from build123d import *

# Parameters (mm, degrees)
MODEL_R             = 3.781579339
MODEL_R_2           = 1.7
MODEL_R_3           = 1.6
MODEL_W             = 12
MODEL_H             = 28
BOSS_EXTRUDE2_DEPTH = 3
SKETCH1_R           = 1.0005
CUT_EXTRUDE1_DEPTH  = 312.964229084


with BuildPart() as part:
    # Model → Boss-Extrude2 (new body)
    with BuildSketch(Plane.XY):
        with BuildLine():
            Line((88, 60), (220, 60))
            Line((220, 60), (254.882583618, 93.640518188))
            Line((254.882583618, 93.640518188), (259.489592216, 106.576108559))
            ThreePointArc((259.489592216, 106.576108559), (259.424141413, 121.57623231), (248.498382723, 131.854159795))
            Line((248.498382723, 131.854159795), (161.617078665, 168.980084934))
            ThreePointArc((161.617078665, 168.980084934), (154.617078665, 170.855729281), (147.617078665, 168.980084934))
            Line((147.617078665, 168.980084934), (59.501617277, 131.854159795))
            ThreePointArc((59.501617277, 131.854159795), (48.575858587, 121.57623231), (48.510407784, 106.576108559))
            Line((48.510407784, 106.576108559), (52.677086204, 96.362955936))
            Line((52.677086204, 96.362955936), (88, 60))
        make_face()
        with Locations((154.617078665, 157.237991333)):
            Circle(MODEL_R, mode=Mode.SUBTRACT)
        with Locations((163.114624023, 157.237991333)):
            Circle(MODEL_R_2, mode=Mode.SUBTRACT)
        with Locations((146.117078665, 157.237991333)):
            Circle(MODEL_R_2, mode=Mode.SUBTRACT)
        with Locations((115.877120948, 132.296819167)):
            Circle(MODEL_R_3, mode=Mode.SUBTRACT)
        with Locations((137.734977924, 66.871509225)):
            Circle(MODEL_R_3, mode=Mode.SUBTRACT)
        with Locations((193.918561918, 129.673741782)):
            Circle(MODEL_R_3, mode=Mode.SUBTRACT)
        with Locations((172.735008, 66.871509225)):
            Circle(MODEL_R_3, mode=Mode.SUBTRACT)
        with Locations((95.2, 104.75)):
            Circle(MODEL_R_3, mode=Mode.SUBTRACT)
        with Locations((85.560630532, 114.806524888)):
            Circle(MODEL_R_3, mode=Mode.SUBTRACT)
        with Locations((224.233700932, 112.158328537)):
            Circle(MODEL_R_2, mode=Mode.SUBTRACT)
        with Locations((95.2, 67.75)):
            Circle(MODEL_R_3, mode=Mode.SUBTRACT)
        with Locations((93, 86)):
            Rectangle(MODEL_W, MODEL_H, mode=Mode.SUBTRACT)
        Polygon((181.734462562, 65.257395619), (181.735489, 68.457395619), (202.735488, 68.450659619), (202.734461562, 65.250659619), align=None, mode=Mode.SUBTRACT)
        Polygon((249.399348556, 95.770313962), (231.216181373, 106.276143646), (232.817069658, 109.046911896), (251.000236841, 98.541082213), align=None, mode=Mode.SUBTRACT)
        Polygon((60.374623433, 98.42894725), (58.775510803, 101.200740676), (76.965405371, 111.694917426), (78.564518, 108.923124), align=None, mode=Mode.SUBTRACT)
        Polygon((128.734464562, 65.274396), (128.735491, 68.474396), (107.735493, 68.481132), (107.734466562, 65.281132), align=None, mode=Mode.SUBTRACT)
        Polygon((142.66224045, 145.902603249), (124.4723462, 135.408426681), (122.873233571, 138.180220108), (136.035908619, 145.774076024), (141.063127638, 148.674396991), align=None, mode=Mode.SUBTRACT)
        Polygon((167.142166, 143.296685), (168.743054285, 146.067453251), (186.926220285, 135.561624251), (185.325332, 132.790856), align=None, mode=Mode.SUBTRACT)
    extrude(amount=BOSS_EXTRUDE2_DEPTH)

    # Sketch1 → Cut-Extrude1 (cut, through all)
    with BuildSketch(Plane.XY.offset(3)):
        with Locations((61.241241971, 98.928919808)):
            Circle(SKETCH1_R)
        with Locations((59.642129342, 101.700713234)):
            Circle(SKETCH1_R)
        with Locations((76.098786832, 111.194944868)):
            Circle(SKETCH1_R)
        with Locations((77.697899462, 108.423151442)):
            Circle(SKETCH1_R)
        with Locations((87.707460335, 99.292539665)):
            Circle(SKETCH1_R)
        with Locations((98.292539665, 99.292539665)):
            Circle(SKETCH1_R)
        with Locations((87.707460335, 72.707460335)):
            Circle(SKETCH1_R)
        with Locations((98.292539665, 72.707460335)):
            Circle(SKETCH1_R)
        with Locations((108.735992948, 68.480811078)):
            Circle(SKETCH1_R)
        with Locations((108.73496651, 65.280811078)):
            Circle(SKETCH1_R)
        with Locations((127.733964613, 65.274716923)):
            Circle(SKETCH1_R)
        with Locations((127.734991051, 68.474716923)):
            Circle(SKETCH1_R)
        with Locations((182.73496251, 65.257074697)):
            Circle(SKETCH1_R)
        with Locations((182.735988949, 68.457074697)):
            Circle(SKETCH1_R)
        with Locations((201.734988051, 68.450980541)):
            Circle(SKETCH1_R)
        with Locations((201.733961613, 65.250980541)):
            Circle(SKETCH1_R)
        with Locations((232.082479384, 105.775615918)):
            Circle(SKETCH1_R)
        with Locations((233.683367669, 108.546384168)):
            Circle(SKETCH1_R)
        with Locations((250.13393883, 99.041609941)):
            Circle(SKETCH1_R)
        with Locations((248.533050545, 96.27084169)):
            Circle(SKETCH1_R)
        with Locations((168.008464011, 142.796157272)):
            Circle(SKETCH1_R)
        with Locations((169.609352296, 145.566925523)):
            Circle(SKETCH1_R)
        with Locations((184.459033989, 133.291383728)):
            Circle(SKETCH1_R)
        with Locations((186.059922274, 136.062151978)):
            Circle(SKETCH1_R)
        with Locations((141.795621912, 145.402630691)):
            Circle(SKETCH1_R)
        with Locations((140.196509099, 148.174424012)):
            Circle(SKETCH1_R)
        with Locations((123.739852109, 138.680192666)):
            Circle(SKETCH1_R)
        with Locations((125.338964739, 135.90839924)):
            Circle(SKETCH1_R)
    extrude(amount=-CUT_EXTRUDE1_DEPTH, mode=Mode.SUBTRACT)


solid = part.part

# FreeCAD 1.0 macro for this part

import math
import FreeCAD as App
import Part
import Sketcher

V = App.Vector
Q = App.Units.Quantity

doc = App.newDocument("Part")
body = doc.addObject("PartDesign::Body", "Body")

# Sketch on XY plane
sketch1 = body.newObject("Sketcher::SketchObject", "Sketch")
sketch1.AttachmentSupport = (doc.getObject("XY_Plane"), [""])
sketch1.MapMode = "FlatFace"
sketch1.addGeometry(Part.LineSegment(V(88, 60, 0), V(220, 60, 0)), False)
sketch1.addGeometry(Part.LineSegment(V(220, 60, 0), V(254.882584, 93.640518, 0)), False)
sketch1.addGeometry(Part.LineSegment(V(254.882584, 93.640518, 0), V(259.489592, 106.576109, 0)), False)
sketch1.addGeometry(Part.ArcOfCircle(Part.Circle(V(242, 114, 0), V(0, 0, 1), 19), math.radians(-23), math.radians(70)), False)
sketch1.addGeometry(Part.LineSegment(V(248.498383, 131.85416, 0), V(161.617079, 168.980085, 0)), False)
sketch1.addGeometry(Part.ArcOfCircle(Part.Circle(V(154.617079, 156.855729, 0), V(0, 0, 1), 14), math.radians(60), math.radians(120)), False)
sketch1.addGeometry(Part.LineSegment(V(147.617079, 168.980085, 0), V(59.501617, 131.85416, 0)), False)
sketch1.addGeometry(Part.ArcOfCircle(Part.Circle(V(66, 114, 0), V(0, 0, 1), 19), math.radians(110), math.radians(203)), False)
sketch1.addGeometry(Part.LineSegment(V(48.510408, 106.576109, 0), V(52.677086, 96.362956, 0)), False)
sketch1.addGeometry(Part.LineSegment(V(52.677086, 96.362956, 0), V(88, 60, 0)), False)
sketch1.addGeometry(Part.Circle(V(95.2, 67.75, 0), V(0, 0, 1), 1.6), False)
sketch1.addGeometry(Part.LineSegment(V(99, 72, 0), V(87, 72, 0)), False)
sketch1.addGeometry(Part.LineSegment(V(87, 72, 0), V(87, 100, 0)), False)
sketch1.addGeometry(Part.LineSegment(V(87, 100, 0), V(99, 100, 0)), False)
sketch1.addGeometry(Part.LineSegment(V(99, 100, 0), V(99, 72, 0)), False)
sketch1.addGeometry(Part.LineSegment(V(128.735491, 68.474396, 0), V(128.734465, 65.274396, 0)), False)
sketch1.addGeometry(Part.LineSegment(V(128.734465, 65.274396, 0), V(107.734467, 65.281132, 0)), False)
sketch1.addGeometry(Part.LineSegment(V(107.734467, 65.281132, 0), V(107.735493, 68.481132, 0)), False)
sketch1.addGeometry(Part.LineSegment(V(107.735493, 68.481132, 0), V(128.735491, 68.474396, 0)), False)
sketch1.addGeometry(Part.Circle(V(137.734978, 66.871509, 0), V(0, 0, 1), 1.6), False)
sketch1.addGeometry(Part.LineSegment(V(78.564518, 108.923124, 0), V(60.374623, 98.428947, 0)), False)
sketch1.addGeometry(Part.LineSegment(V(60.374623, 98.428947, 0), V(58.775511, 101.200741, 0)), False)
sketch1.addGeometry(Part.LineSegment(V(58.775511, 101.200741, 0), V(76.965405, 111.694917, 0)), False)
sketch1.addGeometry(Part.LineSegment(V(76.965405, 111.694917, 0), V(78.564518, 108.923124, 0)), False)
sketch1.addGeometry(Part.Circle(V(95.2, 104.75, 0), V(0, 0, 1), 1.6), False)
sketch1.addGeometry(Part.Circle(V(172.735008, 66.871509, 0), V(0, 0, 1), 1.6), False)
sketch1.addGeometry(Part.LineSegment(V(202.734462, 65.25066, 0), V(181.734463, 65.257396, 0)), False)
sketch1.addGeometry(Part.LineSegment(V(181.734463, 65.257396, 0), V(181.735489, 68.457396, 0)), False)
sketch1.addGeometry(Part.LineSegment(V(181.735489, 68.457396, 0), V(202.735488, 68.45066, 0)), False)
sketch1.addGeometry(Part.LineSegment(V(202.735488, 68.45066, 0), V(202.734462, 65.25066, 0)), False)
sketch1.addGeometry(Part.Circle(V(224.233701, 112.158329, 0), V(0, 0, 1), 1.7), False)
sketch1.addGeometry(Part.LineSegment(V(251.000237, 98.541082, 0), V(249.399349, 95.770314, 0)), False)
sketch1.addGeometry(Part.LineSegment(V(249.399349, 95.770314, 0), V(231.216181, 106.276144, 0)), False)
sketch1.addGeometry(Part.LineSegment(V(231.216181, 106.276144, 0), V(232.81707, 109.046912, 0)), False)
sketch1.addGeometry(Part.LineSegment(V(232.81707, 109.046912, 0), V(251.000237, 98.541082, 0)), False)
sketch1.addGeometry(Part.Circle(V(85.560631, 114.806525, 0), V(0, 0, 1), 1.6), False)
sketch1.addGeometry(Part.Circle(V(115.877121, 132.296819, 0), V(0, 0, 1), 1.6), False)
sketch1.addGeometry(Part.LineSegment(V(141.063128, 148.674397, 0), V(142.66224, 145.902603, 0)), False)
sketch1.addGeometry(Part.LineSegment(V(142.66224, 145.902603, 0), V(124.472346, 135.408427, 0)), False)
sketch1.addGeometry(Part.LineSegment(V(124.472346, 135.408427, 0), V(122.873234, 138.18022, 0)), False)
sketch1.addGeometry(Part.LineSegment(V(122.873234, 138.18022, 0), V(136.035909, 145.774076, 0)), False)
sketch1.addGeometry(Part.LineSegment(V(136.035909, 145.774076, 0), V(141.063128, 148.674397, 0)), False)
sketch1.addGeometry(Part.Circle(V(146.117079, 157.237991, 0), V(0, 0, 1), 1.7), False)
sketch1.addGeometry(Part.Circle(V(154.617079, 157.237991, 0), V(0, 0, 1), 3.781579), False)
sketch1.addGeometry(Part.Circle(V(193.918562, 129.673742, 0), V(0, 0, 1), 1.6), False)
sketch1.addGeometry(Part.LineSegment(V(185.325332, 132.790856, 0), V(167.142166, 143.296685, 0)), False)
sketch1.addGeometry(Part.LineSegment(V(167.142166, 143.296685, 0), V(168.743054, 146.067453, 0)), False)
sketch1.addGeometry(Part.LineSegment(V(168.743054, 146.067453, 0), V(186.92622, 135.561624, 0)), False)
sketch1.addGeometry(Part.LineSegment(V(186.92622, 135.561624, 0), V(185.325332, 132.790856, 0)), False)
sketch1.addGeometry(Part.Circle(V(163.114624, 157.237991, 0), V(0, 0, 1), 1.7), False)
sketch1.addConstraint(Sketcher.Constraint("Coincident", 0, 2, 1, 1))
sketch1.addConstraint(Sketcher.Constraint("Coincident", 1, 2, 2, 1))
sketch1.addConstraint(Sketcher.Constraint("Coincident", 2, 2, 3, 1))
sketch1.addConstraint(Sketcher.Constraint("Coincident", 3, 2, 4, 1))
sketch1.addConstraint(Sketcher.Constraint("Coincident", 4, 2, 5, 1))
sketch1.addConstraint(Sketcher.Constraint("Coincident", 5, 2, 6, 1))
sketch1.addConstraint(Sketcher.Constraint("Coincident", 6, 2, 7, 1))
sketch1.addConstraint(Sketcher.Constraint("Coincident", 7, 2, 8, 1))
sketch1.addConstraint(Sketcher.Constraint("Coincident", 8, 2, 9, 1))
sketch1.addConstraint(Sketcher.Constraint("Coincident", 9, 2, 0, 1))
sketch1.addConstraint(Sketcher.Constraint("Coincident", 11, 2, 12, 1))
sketch1.addConstraint(Sketcher.Constraint("Coincident", 12, 2, 13, 1))
sketch1.addConstraint(Sketcher.Constraint("Coincident", 13, 2, 14, 1))
sketch1.addConstraint(Sketcher.Constraint("Coincident", 14, 2, 11, 1))
sketch1.addConstraint(Sketcher.Constraint("Coincident", 15, 2, 16, 1))
sketch1.addConstraint(Sketcher.Constraint("Coincident", 16, 2, 17, 1))
sketch1.addConstraint(Sketcher.Constraint("Coincident", 17, 2, 18, 1))
sketch1.addConstraint(Sketcher.Constraint("Coincident", 18, 2, 15, 1))
sketch1.addConstraint(Sketcher.Constraint("Coincident", 20, 2, 21, 1))
sketch1.addConstraint(Sketcher.Constraint("Coincident", 21, 2, 22, 1))
sketch1.addConstraint(Sketcher.Constraint("Coincident", 22, 2, 23, 1))
sketch1.addConstraint(Sketcher.Constraint("Coincident", 23, 2, 20, 1))
sketch1.addConstraint(Sketcher.Constraint("Coincident", 26, 2, 27, 1))
sketch1.addConstraint(Sketcher.Constraint("Coincident", 27, 2, 28, 1))
sketch1.addConstraint(Sketcher.Constraint("Coincident", 28, 2, 29, 1))
sketch1.addConstraint(Sketcher.Constraint("Coincident", 29, 2, 26, 1))
sketch1.addConstraint(Sketcher.Constraint("Coincident", 31, 2, 32, 1))
sketch1.addConstraint(Sketcher.Constraint("Coincident", 32, 2, 33, 1))
sketch1.addConstraint(Sketcher.Constraint("Coincident", 33, 2, 34, 1))
sketch1.addConstraint(Sketcher.Constraint("Coincident", 34, 2, 31, 1))
sketch1.addConstraint(Sketcher.Constraint("Coincident", 37, 2, 38, 1))
sketch1.addConstraint(Sketcher.Constraint("Coincident", 38, 2, 39, 1))
sketch1.addConstraint(Sketcher.Constraint("Coincident", 39, 2, 40, 1))
sketch1.addConstraint(Sketcher.Constraint("Coincident", 40, 2, 41, 1))
sketch1.addConstraint(Sketcher.Constraint("Coincident", 41, 2, 37, 1))
sketch1.addConstraint(Sketcher.Constraint("Coincident", 45, 2, 46, 1))
sketch1.addConstraint(Sketcher.Constraint("Coincident", 46, 2, 47, 1))
sketch1.addConstraint(Sketcher.Constraint("Coincident", 47, 2, 48, 1))
sketch1.addConstraint(Sketcher.Constraint("Coincident", 48, 2, 45, 1))
sketch1.addConstraint(Sketcher.Constraint("Horizontal", 0))
sketch1.addConstraint(Sketcher.Constraint("Horizontal", 11))
sketch1.addConstraint(Sketcher.Constraint("Vertical", 12))
sketch1.addConstraint(Sketcher.Constraint("Horizontal", 13))
sketch1.addConstraint(Sketcher.Constraint("Vertical", 14))
sketch1.addConstraint(Sketcher.Constraint("Equal", 3, 7))
sketch1.addConstraint(Sketcher.Constraint("Equal", 10, 19))
sketch1.addConstraint(Sketcher.Constraint("Equal", 19, 24))
sketch1.addConstraint(Sketcher.Constraint("Equal", 24, 25))
sketch1.addConstraint(Sketcher.Constraint("Equal", 25, 35))
sketch1.addConstraint(Sketcher.Constraint("Equal", 35, 36))
sketch1.addConstraint(Sketcher.Constraint("Equal", 30, 42))
sketch1.addConstraint(Sketcher.Constraint("Equal", 36, 44))
sketch1.addConstraint(Sketcher.Constraint("Equal", 42, 49))
sketch1.addConstraint(Sketcher.Constraint("Perpendicular", 15, 16))
sketch1.addConstraint(Sketcher.Constraint("Perpendicular", 16, 17))
sketch1.addConstraint(Sketcher.Constraint("Perpendicular", 17, 18))
sketch1.addConstraint(Sketcher.Constraint("Perpendicular", 20, 21))
sketch1.addConstraint(Sketcher.Constraint("Perpendicular", 21, 22))
sketch1.addConstraint(Sketcher.Constraint("Perpendicular", 22, 23))
sketch1.addConstraint(Sketcher.Constraint("Parallel", 18, 26))
sketch1.addConstraint(Sketcher.Constraint("Perpendicular", 26, 27))
sketch1.addConstraint(Sketcher.Constraint("Perpendicular", 27, 28))
sketch1.addConstraint(Sketcher.Constraint("Perpendicular", 28, 29))
sketch1.addConstraint(Sketcher.Constraint("Perpendicular", 31, 32))
sketch1.addConstraint(Sketcher.Constraint("Perpendicular", 32, 33))
sketch1.addConstraint(Sketcher.Constraint("Perpendicular", 33, 34))
sketch1.addConstraint(Sketcher.Constraint("Parallel", 23, 37))
sketch1.addConstraint(Sketcher.Constraint("Perpendicular", 37, 38))
sketch1.addConstraint(Sketcher.Constraint("Perpendicular", 38, 39))
sketch1.addConstraint(Sketcher.Constraint("Perpendicular", 39, 40))
sketch1.addConstraint(Sketcher.Constraint("Parallel", 40, 41))
sketch1.addConstraint(Sketcher.Constraint("Parallel", 34, 45))
sketch1.addConstraint(Sketcher.Constraint("Perpendicular", 45, 46))
sketch1.addConstraint(Sketcher.Constraint("Perpendicular", 46, 47))
sketch1.addConstraint(Sketcher.Constraint("Perpendicular", 47, 48))
sketch1.addConstraint(Sketcher.Constraint("Horizontal", 3, 3, 7, 3))
sketch1.addConstraint(Sketcher.Constraint("Horizontal", 19, 3, 25, 3))
sketch1.addConstraint(Sketcher.Constraint("Horizontal", 42, 3, 43, 3))
sketch1.addConstraint(Sketcher.Constraint("Horizontal", 43, 3, 49, 3))
sketch1.addConstraint(Sketcher.Constraint("Horizontal", 4, 2, 5, 2))
sketch1.addConstraint(Sketcher.Constraint("Horizontal", 3, 2, 6, 2))
sketch1.addConstraint(Sketcher.Constraint("Horizontal", 2, 2, 7, 2))
sketch1.addConstraint(Sketcher.Constraint("Vertical", 10, 3, 24, 3))
sketch1.addConstraint(Sketcher.Constraint("Vertical", 5, 3, 43, 3))
sketch1.addConstraint(Sketcher.Constraint("Equal", 18, 20))
sketch1.addConstraint(Sketcher.Constraint("Equal", 17, 21))
sketch1.addConstraint(Sketcher.Constraint("Equal", 22, 26))
sketch1.addConstraint(Sketcher.Constraint("Equal", 23, 27))
sketch1.addConstraint(Sketcher.Constraint("Equal", 29, 31))
sketch1.addConstraint(Sketcher.Constraint("Equal", 28, 32))
sketch1.addConstraint(Sketcher.Constraint("Equal", 33, 37))
sketch1.addConstraint(Sketcher.Constraint("Equal", 34, 38))
sketch1.addConstraint(Sketcher.Constraint("Equal", 38, 45))
sketch1.addConstraint(Sketcher.Constraint("Equal", 39, 46))
sketch1.addConstraint(Sketcher.Constraint("Radius", 3, Q("19 mm")))
sketch1.addConstraint(Sketcher.Constraint("Radius", 5, Q("14 mm")))
sketch1.addConstraint(Sketcher.Constraint("Diameter", 10, Q("3.2 mm")))
sketch1.addConstraint(Sketcher.Constraint("Diameter", 30, Q("3.4 mm")))
sketch1.addConstraint(Sketcher.Constraint("DistanceX", 0, 1, 0, 2, Q("132 mm")))
sketch1.addConstraint(Sketcher.Constraint("DistanceX", 11, 2, 11, 1, Q("12 mm")))
sketch1.addConstraint(Sketcher.Constraint("DistanceY", 12, 1, 12, 2, Q("28 mm")))
sketch1.addConstraint(Sketcher.Constraint("Distance", 16, Q("20.999999 mm")))
sketch1.addConstraint(Sketcher.Constraint("DistanceX", -1, 1, 3, 3, Q("242 mm")))
sketch1.addConstraint(Sketcher.Constraint("DistanceY", -1, 1, 3, 3, Q("114 mm")))
sketch1.addConstraint(Sketcher.Constraint("DistanceX", -1, 1, 7, 3, Q("66 mm")))
sketch1.addConstraint(Sketcher.Constraint("DistanceX", -1, 1, 0, 2, Q("220 mm")))
sketch1.addConstraint(Sketcher.Constraint("DistanceY", -1, 1, 0, 2, Q("60 mm")))
sketch1.addConstraint(Sketcher.Constraint("DistanceX", -1, 1, 11, 2, Q("87 mm")))
sketch1.addConstraint(Sketcher.Constraint("DistanceY", -1, 1, 11, 2, Q("72 mm")))
sketch1.addConstraint(Sketcher.Constraint("DistanceY", 10, 3, 24, 3, Q("37 mm")))
sketch1.addConstraint(Sketcher.Constraint("DistanceX", 43, 3, 4, 2, Q("7 mm")))
sketch1.addConstraint(Sketcher.Constraint("DistanceX", 15, 2, 26, 2, Q("52.999998 mm")))
sketch1.addConstraint(Sketcher.Constraint("Distance", 15, Q("3.2 mm")))
sketch1.addConstraint(Sketcher.Constraint("DistanceX", -1, 1, 10, 3, Q("95.2 mm")))
sketch1.addConstraint(Sketcher.Constraint("DistanceX", 42, 3, 5, 3, Q("8.5 mm")))
sketch1.addConstraint(Sketcher.Constraint("Diameter", 43, Q("7.563159 mm")))
sketch1.addConstraint(Sketcher.Constraint("DistanceY", -1, 1, 10, 3, Q("67.75 mm")))
sketch1.addConstraint(Sketcher.Constraint("DistanceY", 26, 2, 15, 2, Q("0.017 mm")))
sketch1.addConstraint(Sketcher.Constraint("Distance", 8, Q("11.030399 mm")))
sketch1.addConstraint(Sketcher.Constraint("Distance", 9, Q("50.694899 mm")))
sketch1.addConstraint(Sketcher.Constraint("DistanceX", -1, 1, 30, 3, Q("224.233701 mm")))
sketch1.addConstraint(Sketcher.Constraint("DistanceX", 19, 3, 5, 3, Q("16.882101 mm")))
sketch1.addConstraint(Sketcher.Constraint("DistanceY", 30, 3, 5, 3, Q("44.697401 mm")))
sketch1.addConstraint(Sketcher.Constraint("DistanceX", 3, 2, 1, 2, Q("6.384201 mm")))
sketch1.addConstraint(Sketcher.Constraint("DistanceY", 23, 2, 35, 3, Q("5.883401 mm")))
sketch1.addConstraint(Sketcher.Constraint("DistanceY", 36, 3, 39, 2, Q("5.883401 mm")))
sketch1.addConstraint(Sketcher.Constraint("Distance", 1, Q("48.461109 mm")))
sketch1.addConstraint(Sketcher.Constraint("Distance", 4, Q("94.48119 mm")))
sketch1.addConstraint(Sketcher.Constraint("Distance", 40, Q("15.19614 mm")))
sketch1.addConstraint(Sketcher.Constraint("DistanceX", -1, 1, 5, 3, Q("154.617079 mm")))
sketch1.addConstraint(Sketcher.Constraint("DistanceY", -1, 1, 5, 3, Q("156.855729 mm")))
sketch1.addConstraint(Sketcher.Constraint("DistanceY", -1, 1, 19, 3, Q("66.871509 mm")))
sketch1.addConstraint(Sketcher.Constraint("DistanceX", -1, 1, 25, 3, Q("172.735008 mm")))
sketch1.addConstraint(Sketcher.Constraint("DistanceX", -1, 1, 35, 3, Q("85.560631 mm")))
sketch1.addConstraint(Sketcher.Constraint("DistanceX", -1, 1, 36, 3, Q("115.877121 mm")))
sketch1.addConstraint(Sketcher.Constraint("DistanceY", -1, 1, 36, 3, Q("132.296819 mm")))
sketch1.addConstraint(Sketcher.Constraint("DistanceY", -1, 1, 42, 3, Q("157.237991 mm")))
sketch1.addConstraint(Sketcher.Constraint("DistanceX", -1, 1, 44, 3, Q("193.918562 mm")))
sketch1.addConstraint(Sketcher.Constraint("DistanceY", -1, 1, 44, 3, Q("129.673742 mm")))
sketch1.addConstraint(Sketcher.Constraint("DistanceY", -1, 1, 2, 2, Q("106.576109 mm")))
sketch1.addConstraint(Sketcher.Constraint("DistanceY", -1, 1, 16, 2, Q("65.281132 mm")))
sketch1.addConstraint(Sketcher.Constraint("DistanceX", -1, 1, 18, 2, Q("128.735491 mm")))
sketch1.addConstraint(Sketcher.Constraint("DistanceX", -1, 1, 21, 2, Q("58.775511 mm")))
sketch1.addConstraint(Sketcher.Constraint("DistanceY", -1, 1, 21, 2, Q("101.200741 mm")))
sketch1.addConstraint(Sketcher.Constraint("DistanceX", -1, 1, 23, 2, Q("78.564518 mm")))
sketch1.addConstraint(Sketcher.Constraint("DistanceY", -1, 1, 28, 2, Q("68.45066 mm")))
sketch1.addConstraint(Sketcher.Constraint("DistanceX", -1, 1, 31, 2, Q("249.399349 mm")))
sketch1.addConstraint(Sketcher.Constraint("DistanceX", -1, 1, 32, 2, Q("231.216181 mm")))
sketch1.addConstraint(Sketcher.Constraint("DistanceY", -1, 1, 33, 2, Q("109.046912 mm")))
sketch1.addConstraint(Sketcher.Constraint("DistanceX", -1, 1, 37, 2, Q("142.66224 mm")))
sketch1.addConstraint(Sketcher.Constraint("DistanceX", -1, 1, 47, 2, Q("186.92622 mm")))
sketch1.addConstraint(Sketcher.Constraint("DistanceX", 49, 3, 45, 2, Q("4.027542 mm")))
sketch1.addConstraint(Sketcher.Constraint("DistanceY", 45, 2, 37, 2, Q("2.605918 mm")))
pad1 = body.newObject("PartDesign::Pad", "Pad")
pad1.Profile = sketch1
pad1.Length = 3

# Sketch on XY plane
sketch2 = body.newObject("Sketcher::SketchObject", "Sketch001")
sketch2.AttachmentSupport = (doc.getObject("XY_Plane"), [""])
sketch2.MapMode = "FlatFace"
sketch2.AttachmentOffset = App.Placement(V(0, 0, 3), App.Rotation())
sketch2.addGeometry(Part.Circle(V(61.241242, 98.92892, 0), V(0, 0, 1), 1.0005), False)
sketch2.addGeometry(Part.Circle(V(59.642129, 101.700713, 0), V(0, 0, 1), 1.0005), False)
sketch2.addGeometry(Part.Circle(V(76.098787, 111.194945, 0), V(0, 0, 1), 1.0005), False)
sketch2.addGeometry(Part.Circle(V(77.697899, 108.423151, 0), V(0, 0, 1), 1.0005), False)
sketch2.addGeometry(Part.Circle(V(87.70746, 99.29254, 0), V(0, 0, 1), 1.0005), False)
sketch2.addGeometry(Part.Circle(V(98.29254, 99.29254, 0), V(0, 0, 1), 1.0005), False)
sketch2.addGeometry(Part.Circle(V(87.70746, 72.70746, 0), V(0, 0, 1), 1.0005), False)
sketch2.addGeometry(Part.Circle(V(98.29254, 72.70746, 0), V(0, 0, 1), 1.0005), False)
sketch2.addGeometry(Part.Circle(V(108.735993, 68.480811, 0), V(0, 0, 1), 1.0005), False)
sketch2.addGeometry(Part.Circle(V(108.734967, 65.280811, 0), V(0, 0, 1), 1.0005), False)
sketch2.addGeometry(Part.Circle(V(127.733965, 65.274717, 0), V(0, 0, 1), 1.0005), False)
sketch2.addGeometry(Part.Circle(V(127.734991, 68.474717, 0), V(0, 0, 1), 1.0005), False)
sketch2.addGeometry(Part.Circle(V(182.734963, 65.257075, 0), V(0, 0, 1), 1.0005), False)
sketch2.addGeometry(Part.Circle(V(182.735989, 68.457075, 0), V(0, 0, 1), 1.0005), False)
sketch2.addGeometry(Part.Circle(V(201.734988, 68.450981, 0), V(0, 0, 1), 1.0005), False)
sketch2.addGeometry(Part.Circle(V(201.733962, 65.250981, 0), V(0, 0, 1), 1.0005), False)
sketch2.addGeometry(Part.Circle(V(232.082479, 105.775616, 0), V(0, 0, 1), 1.0005), False)
sketch2.addGeometry(Part.Circle(V(233.683368, 108.546384, 0), V(0, 0, 1), 1.0005), False)
sketch2.addGeometry(Part.Circle(V(250.133939, 99.04161, 0), V(0, 0, 1), 1.0005), False)
sketch2.addGeometry(Part.Circle(V(248.533051, 96.270842, 0), V(0, 0, 1), 1.0005), False)
sketch2.addGeometry(Part.Circle(V(168.008464, 142.796157, 0), V(0, 0, 1), 1.0005), False)
sketch2.addGeometry(Part.Circle(V(169.609352, 145.566926, 0), V(0, 0, 1), 1.0005), False)
sketch2.addGeometry(Part.Circle(V(184.459034, 133.291384, 0), V(0, 0, 1), 1.0005), False)
sketch2.addGeometry(Part.Circle(V(186.059922, 136.062152, 0), V(0, 0, 1), 1.0005), False)
sketch2.addGeometry(Part.Circle(V(141.795622, 145.402631, 0), V(0, 0, 1), 1.0005), False)
sketch2.addGeometry(Part.Circle(V(140.196509, 148.174424, 0), V(0, 0, 1), 1.0005), False)
sketch2.addGeometry(Part.Circle(V(123.739852, 138.680193, 0), V(0, 0, 1), 1.0005), False)
sketch2.addGeometry(Part.Circle(V(125.338965, 135.908399, 0), V(0, 0, 1), 1.0005), False)
sketch2.addConstraint(Sketcher.Constraint("Equal", 0, 1))
sketch2.addConstraint(Sketcher.Constraint("Equal", 1, 2))
sketch2.addConstraint(Sketcher.Constraint("Equal", 2, 3))
sketch2.addConstraint(Sketcher.Constraint("Equal", 3, 4))
sketch2.addConstraint(Sketcher.Constraint("Equal", 4, 5))
sketch2.addConstraint(Sketcher.Constraint("Equal", 5, 6))
sketch2.addConstraint(Sketcher.Constraint("Equal", 6, 7))
sketch2.addConstraint(Sketcher.Constraint("Equal", 7, 8))
sketch2.addConstraint(Sketcher.Constraint("Equal", 8, 9))
sketch2.addConstraint(Sketcher.Constraint("Equal", 9, 10))
sketch2.addConstraint(Sketcher.Constraint("Equal", 10, 11))
sketch2.addConstraint(Sketcher.Constraint("Equal", 11, 12))
sketch2.addConstraint(Sketcher.Constraint("Equal", 12, 13))
sketch2.addConstraint(Sketcher.Constraint("Equal", 13, 14))
sketch2.addConstraint(Sketcher.Constraint("Equal", 14, 15))
sketch2.addConstraint(Sketcher.Constraint("Equal", 15, 16))
sketch2.addConstraint(Sketcher.Constraint("Equal", 16, 17))
sketch2.addConstraint(Sketcher.Constraint("Equal", 17, 18))
sketch2.addConstraint(Sketcher.Constraint("Equal", 18, 19))
sketch2.addConstraint(Sketcher.Constraint("Equal", 19, 20))
sketch2.addConstraint(Sketcher.Constraint("Equal", 20, 21))
sketch2.addConstraint(Sketcher.Constraint("Equal", 21, 22))
sketch2.addConstraint(Sketcher.Constraint("Equal", 22, 23))
sketch2.addConstraint(Sketcher.Constraint("Equal", 23, 24))
sketch2.addConstraint(Sketcher.Constraint("Equal", 24, 25))
sketch2.addConstraint(Sketcher.Constraint("Equal", 25, 26))
sketch2.addConstraint(Sketcher.Constraint("Equal", 26, 27))
sketch2.addConstraint(Sketcher.Constraint("Horizontal", 4, 3, 5, 3))
sketch2.addConstraint(Sketcher.Constraint("Horizontal", 6, 3, 7, 3))
sketch2.addConstraint(Sketcher.Constraint("Vertical", 4, 3, 6, 3))
sketch2.addConstraint(Sketcher.Constraint("Vertical", 5, 3, 7, 3))
sketch2.addConstraint(Sketcher.Constraint("Diameter", 0, Q("2.001 mm")))
sketch2.addConstraint(Sketcher.Constraint("DistanceY", 9, 3, 8, 3, Q("3.2 mm")))
sketch2.addConstraint(Sketcher.Constraint("DistanceY", 10, 3, 11, 3, Q("3.2 mm")))
sketch2.addConstraint(Sketcher.Constraint("DistanceY", 12, 3, 13, 3, Q("3.2 mm")))
sketch2.addConstraint(Sketcher.Constraint("DistanceY", 15, 3, 14, 3, Q("3.2 mm")))
sketch2.addConstraint(Sketcher.Constraint("DistanceX", 9, 3, 10, 3, Q("18.998998 mm")))
sketch2.addConstraint(Sketcher.Constraint("DistanceX", 8, 3, 11, 3, Q("18.998998 mm")))
sketch2.addConstraint(Sketcher.Constraint("DistanceX", 13, 3, 14, 3, Q("18.998999 mm")))
sketch2.addConstraint(Sketcher.Constraint("DistanceX", 12, 3, 15, 3, Q("18.998999 mm")))
sketch2.addConstraint(Sketcher.Constraint("DistanceY", 17, 3, 22, 3, Q("24.745 mm")))
sketch2.addConstraint(Sketcher.Constraint("DistanceX", -1, 1, 3, 3, Q("77.697899 mm")))
sketch2.addConstraint(Sketcher.Constraint("DistanceY", -1, 1, 27, 3, Q("135.908399 mm")))
sketch2.addConstraint(Sketcher.Constraint("DistanceY", 11, 3, 16, 3, Q("37.300899 mm")))
sketch2.addConstraint(Sketcher.Constraint("DistanceX", 20, 3, 12, 3, Q("14.726498 mm")))
sketch2.addConstraint(Sketcher.Constraint("DistanceX", 24, 3, 23, 3, Q("44.2643 mm")))
sketch2.addConstraint(Sketcher.Constraint("DistanceY", 21, 3, 25, 3, Q("2.607498 mm")))
sketch2.addConstraint(Sketcher.Constraint("DistanceX", 26, 3, 21, 3, Q("45.8695 mm")))
sketch2.addConstraint(Sketcher.Constraint("DistanceX", 27, 3, 20, 3, Q("42.669499 mm")))
sketch2.addConstraint(Sketcher.Constraint("DistanceX", -1, 1, 0, 3, Q("61.241242 mm")))
sketch2.addConstraint(Sketcher.Constraint("DistanceY", -1, 1, 0, 3, Q("98.92892 mm")))
sketch2.addConstraint(Sketcher.Constraint("DistanceX", -1, 1, 1, 3, Q("59.642129 mm")))
sketch2.addConstraint(Sketcher.Constraint("DistanceY", -1, 1, 3, 3, Q("108.423151 mm")))
sketch2.addConstraint(Sketcher.Constraint("DistanceX", -1, 1, 4, 3, Q("87.70746 mm")))
sketch2.addConstraint(Sketcher.Constraint("DistanceY", -1, 1, 4, 3, Q("99.29254 mm")))
sketch2.addConstraint(Sketcher.Constraint("DistanceX", -1, 1, 5, 3, Q("98.29254 mm")))
sketch2.addConstraint(Sketcher.Constraint("DistanceY", -1, 1, 6, 3, Q("72.70746 mm")))
sketch2.addConstraint(Sketcher.Constraint("DistanceY", -1, 1, 8, 3, Q("68.480811 mm")))
sketch2.addConstraint(Sketcher.Constraint("DistanceX", -1, 1, 11, 3, Q("127.734991 mm")))
sketch2.addConstraint(Sketcher.Constraint("DistanceX", -1, 1, 13, 3, Q("182.735989 mm")))
sketch2.addConstraint(Sketcher.Constraint("DistanceY", -1, 1, 14, 3, Q("68.450981 mm")))
sketch2.addConstraint(Sketcher.Constraint("DistanceX", -1, 1, 15, 3, Q("201.733962 mm")))
sketch2.addConstraint(Sketcher.Constraint("DistanceX", -1, 1, 16, 3, Q("232.082479 mm")))
sketch2.addConstraint(Sketcher.Constraint("DistanceX", -1, 1, 18, 3, Q("250.133939 mm")))
sketch2.addConstraint(Sketcher.Constraint("DistanceY", -1, 1, 18, 3, Q("99.04161 mm")))
sketch2.addConstraint(Sketcher.Constraint("DistanceX", -1, 1, 19, 3, Q("248.533051 mm")))
sketch2.addConstraint(Sketcher.Constraint("DistanceY", -1, 1, 19, 3, Q("96.270842 mm")))
sketch2.addConstraint(Sketcher.Constraint("DistanceY", -1, 1, 23, 3, Q("136.062152 mm")))
sketch2.addConstraint(Sketcher.Constraint("DistanceX", -1, 1, 24, 3, Q("141.795622 mm")))
sketch2.addConstraint(Sketcher.Constraint("DistanceY", -1, 1, 24, 3, Q("145.402631 mm")))
sketch2.addConstraint(Sketcher.Constraint("DistanceX", -1, 1, 25, 3, Q("140.196509 mm")))
sketch2.addConstraint(Sketcher.Constraint("DistanceY", 1, 3, 2, 3, Q("9.494232 mm")))
sketch2.addConstraint(Sketcher.Constraint("DistanceY", 1, 3, 3, 3, Q("6.722438 mm")))
sketch2.addConstraint(Sketcher.Constraint("DistanceX", 8, 3, 10, 3, Q("18.997972 mm")))
sketch2.addConstraint(Sketcher.Constraint("DistanceY", 13, 3, 16, 3, Q("37.318541 mm")))
sketch2.addConstraint(Sketcher.Constraint("DistanceX", 16, 3, 17, 3, Q("1.600888 mm")))
sketch2.addConstraint(Sketcher.Constraint("DistanceY", 16, 3, 17, 3, Q("2.770768 mm")))
sketch2.addConstraint(Sketcher.Constraint("DistanceY", 16, 3, 20, 3, Q("37.020541 mm")))
sketch2.addConstraint(Sketcher.Constraint("DistanceX", 20, 3, 21, 3, Q("1.600888 mm")))
sketch2.addConstraint(Sketcher.Constraint("DistanceY", 20, 3, 21, 3, Q("2.770768 mm")))
sketch2.addConstraint(Sketcher.Constraint("DistanceX", 20, 3, 22, 3, Q("16.45057 mm")))
sketch2.addConstraint(Sketcher.Constraint("DistanceY", 22, 3, 23, 3, Q("2.770768 mm")))
sketch2.addConstraint(Sketcher.Constraint("DistanceY", 26, 3, 25, 3, Q("9.494231 mm")))
sketch2.addConstraint(Sketcher.Constraint("DistanceX", -1, 1, 2, 3, Q("76.098787 mm")))
pocket1 = body.newObject("PartDesign::Pocket", "Pocket")
pocket1.Profile = sketch2
pocket1.Type = "ThroughAll"

doc.recompute()
